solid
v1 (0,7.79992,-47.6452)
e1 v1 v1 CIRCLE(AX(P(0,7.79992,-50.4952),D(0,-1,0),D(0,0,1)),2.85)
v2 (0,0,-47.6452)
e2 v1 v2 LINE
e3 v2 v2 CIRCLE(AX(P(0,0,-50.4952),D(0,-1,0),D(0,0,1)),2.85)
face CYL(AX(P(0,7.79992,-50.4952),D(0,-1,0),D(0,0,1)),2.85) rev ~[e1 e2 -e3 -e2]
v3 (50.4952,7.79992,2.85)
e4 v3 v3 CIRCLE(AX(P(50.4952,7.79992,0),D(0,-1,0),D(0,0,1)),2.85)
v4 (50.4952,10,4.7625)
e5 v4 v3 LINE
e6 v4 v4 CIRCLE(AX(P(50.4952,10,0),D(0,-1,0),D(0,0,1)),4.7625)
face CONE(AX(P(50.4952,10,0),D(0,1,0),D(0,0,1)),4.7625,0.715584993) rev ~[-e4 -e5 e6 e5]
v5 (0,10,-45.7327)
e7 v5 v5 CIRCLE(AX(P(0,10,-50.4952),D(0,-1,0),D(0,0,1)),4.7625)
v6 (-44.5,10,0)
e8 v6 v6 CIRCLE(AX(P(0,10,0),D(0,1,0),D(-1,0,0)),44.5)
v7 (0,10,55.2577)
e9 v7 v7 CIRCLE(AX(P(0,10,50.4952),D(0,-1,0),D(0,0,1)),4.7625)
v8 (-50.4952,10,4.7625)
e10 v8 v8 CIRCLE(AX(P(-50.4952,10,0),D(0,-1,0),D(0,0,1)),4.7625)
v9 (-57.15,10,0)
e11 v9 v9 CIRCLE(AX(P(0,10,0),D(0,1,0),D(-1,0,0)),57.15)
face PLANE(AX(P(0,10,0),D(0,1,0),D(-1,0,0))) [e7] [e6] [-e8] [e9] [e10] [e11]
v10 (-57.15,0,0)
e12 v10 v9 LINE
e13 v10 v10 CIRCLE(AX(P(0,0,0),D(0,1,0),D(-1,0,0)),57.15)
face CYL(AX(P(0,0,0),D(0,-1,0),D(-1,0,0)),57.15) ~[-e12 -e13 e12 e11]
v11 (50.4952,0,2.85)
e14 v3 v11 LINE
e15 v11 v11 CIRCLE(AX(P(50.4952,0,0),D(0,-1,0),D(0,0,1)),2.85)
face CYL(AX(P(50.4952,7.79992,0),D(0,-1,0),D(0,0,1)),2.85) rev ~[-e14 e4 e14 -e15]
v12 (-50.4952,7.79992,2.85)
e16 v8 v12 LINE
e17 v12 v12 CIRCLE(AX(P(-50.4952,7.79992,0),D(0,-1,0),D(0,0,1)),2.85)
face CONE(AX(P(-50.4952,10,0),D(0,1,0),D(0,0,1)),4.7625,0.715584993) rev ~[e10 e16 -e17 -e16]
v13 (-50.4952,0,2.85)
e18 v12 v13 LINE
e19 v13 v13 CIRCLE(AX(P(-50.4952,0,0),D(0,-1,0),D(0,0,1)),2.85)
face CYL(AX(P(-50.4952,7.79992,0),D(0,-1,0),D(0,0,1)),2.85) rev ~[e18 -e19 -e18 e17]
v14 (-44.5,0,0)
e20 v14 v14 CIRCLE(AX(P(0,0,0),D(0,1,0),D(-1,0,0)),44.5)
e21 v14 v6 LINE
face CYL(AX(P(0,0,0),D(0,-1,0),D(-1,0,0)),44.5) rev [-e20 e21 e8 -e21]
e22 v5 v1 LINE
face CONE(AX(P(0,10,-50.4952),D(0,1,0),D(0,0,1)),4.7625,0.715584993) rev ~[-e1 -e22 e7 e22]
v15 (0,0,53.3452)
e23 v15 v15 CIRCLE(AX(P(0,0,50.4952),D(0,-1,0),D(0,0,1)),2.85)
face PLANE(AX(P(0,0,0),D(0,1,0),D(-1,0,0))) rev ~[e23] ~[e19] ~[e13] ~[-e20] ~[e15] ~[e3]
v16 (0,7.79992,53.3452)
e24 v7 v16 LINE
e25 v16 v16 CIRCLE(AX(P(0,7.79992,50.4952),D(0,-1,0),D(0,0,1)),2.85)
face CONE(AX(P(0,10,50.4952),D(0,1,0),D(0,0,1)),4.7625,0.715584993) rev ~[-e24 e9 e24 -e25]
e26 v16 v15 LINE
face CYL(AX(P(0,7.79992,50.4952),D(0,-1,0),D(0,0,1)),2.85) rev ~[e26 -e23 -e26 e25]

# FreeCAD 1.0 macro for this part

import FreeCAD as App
import Part
import Sketcher
Q = App.Units.Quantity

doc = App.newDocument("Part")
params = doc.addObject("Spreadsheet::Sheet", "Params")
for row, (alias, value) in enumerate([
    ("sketch1_diameter", "4.5 in"),
    ("pad1_length", "0.3937008 in"),
    ("hole_diameter", "0.2244094 in"),
    ("hole_depth", "0.617 in"),
    ("hole_csink_diameter", "0.375 in"),
], start=1):
    params.set(f"A{row}", alias)
    params.set(f"B{row}", "=" + value)
    params.setAlias(f"B{row}", alias)

body = doc.addObject("PartDesign::Body", "Body")

# Sketch on XZ plane
sketch1 = body.newObject("Sketcher::SketchObject", "Sketch")
sketch1.AttachmentSupport = (doc.getObject("XZ_Plane"), [""])
sketch1.MapMode = "FlatFace"
sketch1.addGeometry([
    Part.Circle(App.Vector(0, 0, 0), App.Vector(0, 0, 1), 57.15),
    Part.Circle(App.Vector(0, 0, 0), App.Vector(0, 0, 1), 44.5),
], False)
sketch1.addConstraint([
    Sketcher.Constraint("Coincident", 0, 3, -1, 1),
    Sketcher.Constraint("Coincident", 1, 3, -1, 1),
    Sketcher.Constraint("Diameter", 0, Q("4.5 in")),
    Sketcher.Constraint("Diameter", 1, Q("89 mm")),
])
sketch1.setExpression("Constraints[2]", "Params.sketch1_diameter")
pad1 = body.newObject("PartDesign::Pad", "Pad")
pad1.Profile = sketch1
pad1.setExpression("Length", "Params.pad1_length")
pad1.Reversed = True

# Sketch on XZ plane
sketch2 = body.newObject("Sketcher::SketchObject", "Sketch001")
sketch2.AttachmentSupport = (doc.getObject("XZ_Plane"), [""])
sketch2.MapMode = "FlatFace"
sketch2.AttachmentOffset = App.Placement(App.Vector(0, 0, -0.3937008 * 25.4), App.Rotation())
sketch2.addGeometry([
    Part.Circle(App.Vector(0, 50.4952, 0), App.Vector(0, 0, 1), 2.85),
    Part.Circle(App.Vector(50.4952, 0, 0), App.Vector(0, 0, 1), 2.85),
    Part.Circle(App.Vector(0, -50.4952, 0), App.Vector(0, 0, 1), 2.85),
    Part.Circle(App.Vector(-50.4952, 0, 0), App.Vector(0, 0, 1), 2.85),
], False)
sketch2.addConstraint([
    Sketcher.Constraint("Equal", 0, 1),
    Sketcher.Constraint("Equal", 1, 2),
    Sketcher.Constraint("Equal", 2, 3),
    Sketcher.Constraint("Symmetric", 0, 3, 2, 3, -1, 1),
    Sketcher.Constraint("Symmetric", 1, 3, 3, 3, -1, 1),
    Sketcher.Constraint("PointOnObject", 0, 3, -2),
    Sketcher.Constraint("PointOnObject", 1, 3, -1),
    Sketcher.Constraint("Diameter", 0, Q("0.2244 in")),
    Sketcher.Constraint("DistanceY", -1, 1, 0, 3, Q("1.988 in")),
    Sketcher.Constraint("DistanceX", -1, 1, 1, 3, Q("1.988 in")),
])
doc.recompute()
hole = body.newObject("PartDesign::Hole", "Hole")
hole.Profile = sketch2
hole.ThreadType = "None"
hole.setExpression("Diameter", "Params.hole_diameter")
hole.DepthType = "Dimension"
hole.setExpression("Depth", "Params.hole_depth")
hole.DrillPoint = "Angled"
hole.DrillPointAngle = 118
hole.HoleCutType = "Countersink"
hole.setExpression("HoleCutDiameter", "Params.hole_csink_diameter")
hole.HoleCutCountersinkAngle = 82
hole.Reversed = True

doc.recompute()
